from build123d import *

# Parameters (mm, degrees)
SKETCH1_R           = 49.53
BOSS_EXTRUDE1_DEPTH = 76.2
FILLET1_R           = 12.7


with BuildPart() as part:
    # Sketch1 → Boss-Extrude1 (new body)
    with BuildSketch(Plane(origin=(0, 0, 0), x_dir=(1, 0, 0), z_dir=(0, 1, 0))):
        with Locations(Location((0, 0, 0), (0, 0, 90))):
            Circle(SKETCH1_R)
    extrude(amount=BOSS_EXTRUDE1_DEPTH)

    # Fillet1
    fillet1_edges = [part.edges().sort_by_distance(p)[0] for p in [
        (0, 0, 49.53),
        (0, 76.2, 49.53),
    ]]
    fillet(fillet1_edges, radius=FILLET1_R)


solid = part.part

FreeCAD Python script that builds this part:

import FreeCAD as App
import Part
import Sketcher

V = App.Vector
Q = App.Units.Quantity


def edges_at(feature, points):
    """Names of the edges that pass closest to the given points."""
    edges = feature.Shape.Edges
    near = lambda p: min(range(len(edges)), key=lambda i: edges[i].distToShape(Part.Vertex(*p))[0])
    return sorted({f"Edge{near(p) + 1}" for p in points})

doc = App.newDocument("Part")
body = doc.addObject("PartDesign::Body", "Body")

# Sketch on XZ plane
sketch1 = body.newObject("Sketcher::SketchObject", "Sketch")
sketch1.AttachmentSupport = (doc.getObject("XZ_Plane"), [""])
sketch1.MapMode = "FlatFace"
sketch1.addGeometry(Part.Circle(V(0, 0, 0), V(0, 0, 1), 49.53), False)
sketch1.addConstraint([
    Sketcher.Constraint("Coincident", 0, 3, -1, 1),
    Sketcher.Constraint("Diameter", 0, Q("3.9 in")),
])
pad1 = body.newObject("PartDesign::Pad", "Pad")
pad1.Profile = sketch1
pad1.Length = Q("3 in")
pad1.Reversed = True
doc.recompute()

fillet = body.newObject("PartDesign::Fillet", "Fillet")
fillet.Base = (pad1, edges_at(pad1, [(0, 0, 49.53), (0, 76.2, 49.53)]))
fillet.Radius = Q("0.5 in")

doc.recompute()
